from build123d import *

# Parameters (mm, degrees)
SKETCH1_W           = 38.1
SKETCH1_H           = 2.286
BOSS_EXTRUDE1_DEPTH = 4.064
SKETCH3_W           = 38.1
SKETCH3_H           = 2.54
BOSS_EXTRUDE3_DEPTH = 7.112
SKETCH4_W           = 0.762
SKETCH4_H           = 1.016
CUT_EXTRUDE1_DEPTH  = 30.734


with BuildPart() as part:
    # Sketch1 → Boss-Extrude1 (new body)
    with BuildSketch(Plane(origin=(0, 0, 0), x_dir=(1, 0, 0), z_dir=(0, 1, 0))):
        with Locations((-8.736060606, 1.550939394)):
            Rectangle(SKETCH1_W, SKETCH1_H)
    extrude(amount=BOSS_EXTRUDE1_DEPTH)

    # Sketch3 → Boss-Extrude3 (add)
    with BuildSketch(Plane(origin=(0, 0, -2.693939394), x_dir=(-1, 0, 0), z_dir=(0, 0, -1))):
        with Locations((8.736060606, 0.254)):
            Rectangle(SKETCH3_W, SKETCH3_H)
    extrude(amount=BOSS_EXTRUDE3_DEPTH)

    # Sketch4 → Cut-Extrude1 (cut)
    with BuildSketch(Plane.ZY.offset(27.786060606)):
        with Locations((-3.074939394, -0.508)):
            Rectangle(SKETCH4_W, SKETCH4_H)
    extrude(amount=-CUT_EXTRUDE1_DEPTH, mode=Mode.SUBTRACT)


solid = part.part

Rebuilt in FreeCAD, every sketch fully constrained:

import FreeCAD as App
import Part
import Sketcher

V = App.Vector
Q = App.Units.Quantity


def add_polygon(sketch, points):
    """Adds a closed chain of lines whose ends are joined by coincident constraints."""
    first, n = sketch.GeometryCount, len(points)
    for a, b in zip(points, points[1:] + points[:1]):
        sketch.addGeometry(Part.LineSegment(App.Vector(*a, 0), App.Vector(*b, 0)), False)
    for i in range(n):
        sketch.addConstraint(Sketcher.Constraint("Coincident", first + i, 2, first + (i + 1) % n, 1))

doc = App.newDocument("Part")
body = doc.addObject("PartDesign::Body", "Body")

# Sketch on XZ plane
sketch1 = body.newObject("Sketcher::SketchObject", "Sketch")
sketch1.AttachmentSupport = (doc.getObject("XZ_Plane"), [""])
sketch1.MapMode = "FlatFace"
add_polygon(sketch1, [(-27.786061, -2.693939), (-27.786061, -0.407939), (10.313939, -0.407939), (10.313939, -2.693939)])  # lines 0-3
sketch1.addConstraint([
    Sketcher.Constraint("Vertical", 0),
    Sketcher.Constraint("Horizontal", 1),
    Sketcher.Constraint("Vertical", 2),
    Sketcher.Constraint("Horizontal", 3),
    Sketcher.Constraint("DistanceX", 1, 1, 1, 2, Q("1.5 in")),
    Sketcher.Constraint("DistanceY", 0, 1, 0, 2, Q("0.09 in")),
    Sketcher.Constraint("DistanceX", 0, 2, -1, 1, Q("27.786061 mm")),
    Sketcher.Constraint("DistanceY", 0, 2, -1, 1, Q("0.407939 mm")),
])
pad1 = body.newObject("PartDesign::Pad", "Pad")
pad1.Profile = sketch1
pad1.Length = Q("0.16 in")
pad1.Reversed = True

# Sketch on XY plane
sketch2 = body.newObject("Sketcher::SketchObject", "Sketch001")
sketch2.AttachmentSupport = (doc.getObject("XY_Plane"), [""])
sketch2.MapMode = "FlatFace"
sketch2.AttachmentOffset = App.Placement(V(0, 0, -2.693939), App.Rotation())
add_polygon(sketch2, [(10.313939, 1.524), (10.313939, -1.016), (-27.786061, -1.016), (-27.786061, 1.524)])  # lines 0-3
sketch2.addConstraint([
    Sketcher.Constraint("Vertical", 0),
    Sketcher.Constraint("Horizontal", 1),
    Sketcher.Constraint("Vertical", 2),
    Sketcher.Constraint("Horizontal", 3),
    Sketcher.Constraint("DistanceX", 1, 2, 1, 1, Q("1.5 in")),
    Sketcher.Constraint("DistanceY", 0, 2, 0, 1, Q("0.1 in")),
    Sketcher.Constraint("DistanceY", 0, 2, -1, 1, Q("0.04 in")),
    Sketcher.Constraint("DistanceX", -1, 1, 0, 2, Q("10.313939 mm")),
])
pad2 = body.newObject("PartDesign::Pad", "Pad001")
pad2.Profile = sketch2
pad2.Length = Q("0.28 in")
pad2.Reversed = True

# Sketch on YZ plane
sketch3 = body.newObject("Sketcher::SketchObject", "Sketch002")
sketch3.AttachmentSupport = (doc.getObject("YZ_Plane"), [""])
sketch3.MapMode = "FlatFace"
sketch3.AttachmentOffset = App.Placement(V(0, 0, -27.786061), App.Rotation())
add_polygon(sketch3, [(0, -3.455939), (-1.016, -3.455939), (-1.016, -2.693939), (0, -2.693939)])  # lines 0-3
sketch3.addConstraint([
    Sketcher.Constraint("Horizontal", 0),
    Sketcher.Constraint("Vertical", 1),
    Sketcher.Constraint("Horizontal", 2),
    Sketcher.Constraint("Vertical", 3),
    Sketcher.Constraint("PointOnObject", 2, 2, -2),
    Sketcher.Constraint("DistanceX", 0, 2, 0, 1, Q("0.04 in")),
    Sketcher.Constraint("DistanceY", 1, 1, 1, 2, Q("0.03 in")),
    Sketcher.Constraint("DistanceY", 0, 2, -1, 1, Q("3.455939 mm")),
])
pocket1 = body.newObject("PartDesign::Pocket", "Pocket")
pocket1.Profile = sketch3
pocket1.Length = Q("1.21 in")
pocket1.Reversed = True

doc.recompute()
